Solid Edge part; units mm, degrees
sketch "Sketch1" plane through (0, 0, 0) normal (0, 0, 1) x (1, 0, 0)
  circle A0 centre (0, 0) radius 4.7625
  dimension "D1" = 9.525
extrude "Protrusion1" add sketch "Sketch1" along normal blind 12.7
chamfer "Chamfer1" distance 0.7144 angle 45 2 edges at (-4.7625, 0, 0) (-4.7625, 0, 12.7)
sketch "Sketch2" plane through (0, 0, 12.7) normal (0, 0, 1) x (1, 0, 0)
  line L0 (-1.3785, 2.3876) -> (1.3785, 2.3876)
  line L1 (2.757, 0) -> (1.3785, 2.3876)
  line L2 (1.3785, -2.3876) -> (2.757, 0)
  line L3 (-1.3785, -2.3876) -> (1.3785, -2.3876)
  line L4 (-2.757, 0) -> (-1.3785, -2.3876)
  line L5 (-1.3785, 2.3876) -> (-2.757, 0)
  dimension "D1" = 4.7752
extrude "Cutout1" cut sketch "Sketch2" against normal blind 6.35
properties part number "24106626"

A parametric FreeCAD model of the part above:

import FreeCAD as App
import Part
import Sketcher
from FreeCAD import Vector
Q = App.Units.Quantity


def edges_at(feature, points):
    """Names of the edges that pass closest to the given points."""
    edges = feature.Shape.Edges
    near = lambda p: min(range(len(edges)), key=lambda i: edges[i].distToShape(Part.Vertex(*p))[0])
    return sorted({f"Edge{near(p) + 1}" for p in points})


def add_polygon(sketch, points):
    """Adds a closed chain of lines whose ends are joined by coincident constraints."""
    first, n = sketch.GeometryCount, len(points)
    for a, b in zip(points, points[1:] + points[:1]):
        sketch.addGeometry(Part.LineSegment(App.Vector(*a, 0), App.Vector(*b, 0)), False)
    for i in range(n):
        sketch.addConstraint(Sketcher.Constraint("Coincident", first + i, 2, first + (i + 1) % n, 1))

doc = App.newDocument("Part")
body = doc.addObject("PartDesign::Body", "Body")

sketch1 = body.newObject("Sketcher::SketchObject", "Sketch")
sketch1.AttachmentSupport = (doc.getObject("XY_Plane"), [""])
sketch1.MapMode = "FlatFace"
sketch1.addGeometry(Part.Circle(Vector(0, 0, 0), Vector(0, 0, 1), 4.8), False)
sketch1.addConstraint(Sketcher.Constraint("Coincident", 0, 3, -1, 1))
sketch1.addConstraint(Sketcher.Constraint("Diameter", 0, Q("0.375 in")))
pad1 = body.newObject("PartDesign::Pad", "Pad")
pad1.Profile = sketch1
pad1.Length = Q("0.5 in")
doc.recompute()

chamfer = body.newObject("PartDesign::Chamfer", "Chamfer")
chamfer.Base = (pad1, edges_at(pad1, [(-4.763, 0, 0), (-4.763, 0, 12.7)]))
chamfer.Size = 0.7144

sketch2 = body.newObject("Sketcher::SketchObject", "Sketch001")
sketch2.AttachmentSupport = (doc.getObject("XY_Plane"), [""])
sketch2.MapMode = "FlatFace"
sketch2.AttachmentOffset = App.Placement(Vector(0, 0, 0.5 * 25.4), App.Rotation())
add_polygon(sketch2, [(1.4, 2.4), (-1.4, 2.4), (-2.8, 0), (-1.4, -2.4), (1.4, -2.4), (2.8, 0)])
sketch2.addConstraint(Sketcher.Constraint("Horizontal", 0))
sketch2.addConstraint(Sketcher.Constraint("Horizontal", 3))
sketch2.addConstraint(Sketcher.Constraint("Symmetric", 0, 2, 3, 2, -1, 1))
sketch2.addConstraint(Sketcher.Constraint("Symmetric", 1, 2, 4, 2, -1, 1))
sketch2.addConstraint(Sketcher.Constraint("PointOnObject", 1, 2, -1))
sketch2.addConstraint(Sketcher.Constraint("Parallel", 2, 5))
sketch2.addConstraint(Sketcher.Constraint("Vertical", 0, 2, 2, 2))
sketch2.addConstraint(Sketcher.Constraint("Angle", 1, Q("-120.0003 deg")))
sketch2.addConstraint(Sketcher.Constraint("DistanceY", -1, 1, 0, 2, Q("0.094 in")))
sketch2.addConstraint(Sketcher.Constraint("DistanceX", 0, 2, 0, 1, 2.757))
pocket1 = body.newObject("PartDesign::Pocket", "Pocket")
pocket1.Profile = sketch2
pocket1.Length = Q("0.25 in")

doc.recompute()
